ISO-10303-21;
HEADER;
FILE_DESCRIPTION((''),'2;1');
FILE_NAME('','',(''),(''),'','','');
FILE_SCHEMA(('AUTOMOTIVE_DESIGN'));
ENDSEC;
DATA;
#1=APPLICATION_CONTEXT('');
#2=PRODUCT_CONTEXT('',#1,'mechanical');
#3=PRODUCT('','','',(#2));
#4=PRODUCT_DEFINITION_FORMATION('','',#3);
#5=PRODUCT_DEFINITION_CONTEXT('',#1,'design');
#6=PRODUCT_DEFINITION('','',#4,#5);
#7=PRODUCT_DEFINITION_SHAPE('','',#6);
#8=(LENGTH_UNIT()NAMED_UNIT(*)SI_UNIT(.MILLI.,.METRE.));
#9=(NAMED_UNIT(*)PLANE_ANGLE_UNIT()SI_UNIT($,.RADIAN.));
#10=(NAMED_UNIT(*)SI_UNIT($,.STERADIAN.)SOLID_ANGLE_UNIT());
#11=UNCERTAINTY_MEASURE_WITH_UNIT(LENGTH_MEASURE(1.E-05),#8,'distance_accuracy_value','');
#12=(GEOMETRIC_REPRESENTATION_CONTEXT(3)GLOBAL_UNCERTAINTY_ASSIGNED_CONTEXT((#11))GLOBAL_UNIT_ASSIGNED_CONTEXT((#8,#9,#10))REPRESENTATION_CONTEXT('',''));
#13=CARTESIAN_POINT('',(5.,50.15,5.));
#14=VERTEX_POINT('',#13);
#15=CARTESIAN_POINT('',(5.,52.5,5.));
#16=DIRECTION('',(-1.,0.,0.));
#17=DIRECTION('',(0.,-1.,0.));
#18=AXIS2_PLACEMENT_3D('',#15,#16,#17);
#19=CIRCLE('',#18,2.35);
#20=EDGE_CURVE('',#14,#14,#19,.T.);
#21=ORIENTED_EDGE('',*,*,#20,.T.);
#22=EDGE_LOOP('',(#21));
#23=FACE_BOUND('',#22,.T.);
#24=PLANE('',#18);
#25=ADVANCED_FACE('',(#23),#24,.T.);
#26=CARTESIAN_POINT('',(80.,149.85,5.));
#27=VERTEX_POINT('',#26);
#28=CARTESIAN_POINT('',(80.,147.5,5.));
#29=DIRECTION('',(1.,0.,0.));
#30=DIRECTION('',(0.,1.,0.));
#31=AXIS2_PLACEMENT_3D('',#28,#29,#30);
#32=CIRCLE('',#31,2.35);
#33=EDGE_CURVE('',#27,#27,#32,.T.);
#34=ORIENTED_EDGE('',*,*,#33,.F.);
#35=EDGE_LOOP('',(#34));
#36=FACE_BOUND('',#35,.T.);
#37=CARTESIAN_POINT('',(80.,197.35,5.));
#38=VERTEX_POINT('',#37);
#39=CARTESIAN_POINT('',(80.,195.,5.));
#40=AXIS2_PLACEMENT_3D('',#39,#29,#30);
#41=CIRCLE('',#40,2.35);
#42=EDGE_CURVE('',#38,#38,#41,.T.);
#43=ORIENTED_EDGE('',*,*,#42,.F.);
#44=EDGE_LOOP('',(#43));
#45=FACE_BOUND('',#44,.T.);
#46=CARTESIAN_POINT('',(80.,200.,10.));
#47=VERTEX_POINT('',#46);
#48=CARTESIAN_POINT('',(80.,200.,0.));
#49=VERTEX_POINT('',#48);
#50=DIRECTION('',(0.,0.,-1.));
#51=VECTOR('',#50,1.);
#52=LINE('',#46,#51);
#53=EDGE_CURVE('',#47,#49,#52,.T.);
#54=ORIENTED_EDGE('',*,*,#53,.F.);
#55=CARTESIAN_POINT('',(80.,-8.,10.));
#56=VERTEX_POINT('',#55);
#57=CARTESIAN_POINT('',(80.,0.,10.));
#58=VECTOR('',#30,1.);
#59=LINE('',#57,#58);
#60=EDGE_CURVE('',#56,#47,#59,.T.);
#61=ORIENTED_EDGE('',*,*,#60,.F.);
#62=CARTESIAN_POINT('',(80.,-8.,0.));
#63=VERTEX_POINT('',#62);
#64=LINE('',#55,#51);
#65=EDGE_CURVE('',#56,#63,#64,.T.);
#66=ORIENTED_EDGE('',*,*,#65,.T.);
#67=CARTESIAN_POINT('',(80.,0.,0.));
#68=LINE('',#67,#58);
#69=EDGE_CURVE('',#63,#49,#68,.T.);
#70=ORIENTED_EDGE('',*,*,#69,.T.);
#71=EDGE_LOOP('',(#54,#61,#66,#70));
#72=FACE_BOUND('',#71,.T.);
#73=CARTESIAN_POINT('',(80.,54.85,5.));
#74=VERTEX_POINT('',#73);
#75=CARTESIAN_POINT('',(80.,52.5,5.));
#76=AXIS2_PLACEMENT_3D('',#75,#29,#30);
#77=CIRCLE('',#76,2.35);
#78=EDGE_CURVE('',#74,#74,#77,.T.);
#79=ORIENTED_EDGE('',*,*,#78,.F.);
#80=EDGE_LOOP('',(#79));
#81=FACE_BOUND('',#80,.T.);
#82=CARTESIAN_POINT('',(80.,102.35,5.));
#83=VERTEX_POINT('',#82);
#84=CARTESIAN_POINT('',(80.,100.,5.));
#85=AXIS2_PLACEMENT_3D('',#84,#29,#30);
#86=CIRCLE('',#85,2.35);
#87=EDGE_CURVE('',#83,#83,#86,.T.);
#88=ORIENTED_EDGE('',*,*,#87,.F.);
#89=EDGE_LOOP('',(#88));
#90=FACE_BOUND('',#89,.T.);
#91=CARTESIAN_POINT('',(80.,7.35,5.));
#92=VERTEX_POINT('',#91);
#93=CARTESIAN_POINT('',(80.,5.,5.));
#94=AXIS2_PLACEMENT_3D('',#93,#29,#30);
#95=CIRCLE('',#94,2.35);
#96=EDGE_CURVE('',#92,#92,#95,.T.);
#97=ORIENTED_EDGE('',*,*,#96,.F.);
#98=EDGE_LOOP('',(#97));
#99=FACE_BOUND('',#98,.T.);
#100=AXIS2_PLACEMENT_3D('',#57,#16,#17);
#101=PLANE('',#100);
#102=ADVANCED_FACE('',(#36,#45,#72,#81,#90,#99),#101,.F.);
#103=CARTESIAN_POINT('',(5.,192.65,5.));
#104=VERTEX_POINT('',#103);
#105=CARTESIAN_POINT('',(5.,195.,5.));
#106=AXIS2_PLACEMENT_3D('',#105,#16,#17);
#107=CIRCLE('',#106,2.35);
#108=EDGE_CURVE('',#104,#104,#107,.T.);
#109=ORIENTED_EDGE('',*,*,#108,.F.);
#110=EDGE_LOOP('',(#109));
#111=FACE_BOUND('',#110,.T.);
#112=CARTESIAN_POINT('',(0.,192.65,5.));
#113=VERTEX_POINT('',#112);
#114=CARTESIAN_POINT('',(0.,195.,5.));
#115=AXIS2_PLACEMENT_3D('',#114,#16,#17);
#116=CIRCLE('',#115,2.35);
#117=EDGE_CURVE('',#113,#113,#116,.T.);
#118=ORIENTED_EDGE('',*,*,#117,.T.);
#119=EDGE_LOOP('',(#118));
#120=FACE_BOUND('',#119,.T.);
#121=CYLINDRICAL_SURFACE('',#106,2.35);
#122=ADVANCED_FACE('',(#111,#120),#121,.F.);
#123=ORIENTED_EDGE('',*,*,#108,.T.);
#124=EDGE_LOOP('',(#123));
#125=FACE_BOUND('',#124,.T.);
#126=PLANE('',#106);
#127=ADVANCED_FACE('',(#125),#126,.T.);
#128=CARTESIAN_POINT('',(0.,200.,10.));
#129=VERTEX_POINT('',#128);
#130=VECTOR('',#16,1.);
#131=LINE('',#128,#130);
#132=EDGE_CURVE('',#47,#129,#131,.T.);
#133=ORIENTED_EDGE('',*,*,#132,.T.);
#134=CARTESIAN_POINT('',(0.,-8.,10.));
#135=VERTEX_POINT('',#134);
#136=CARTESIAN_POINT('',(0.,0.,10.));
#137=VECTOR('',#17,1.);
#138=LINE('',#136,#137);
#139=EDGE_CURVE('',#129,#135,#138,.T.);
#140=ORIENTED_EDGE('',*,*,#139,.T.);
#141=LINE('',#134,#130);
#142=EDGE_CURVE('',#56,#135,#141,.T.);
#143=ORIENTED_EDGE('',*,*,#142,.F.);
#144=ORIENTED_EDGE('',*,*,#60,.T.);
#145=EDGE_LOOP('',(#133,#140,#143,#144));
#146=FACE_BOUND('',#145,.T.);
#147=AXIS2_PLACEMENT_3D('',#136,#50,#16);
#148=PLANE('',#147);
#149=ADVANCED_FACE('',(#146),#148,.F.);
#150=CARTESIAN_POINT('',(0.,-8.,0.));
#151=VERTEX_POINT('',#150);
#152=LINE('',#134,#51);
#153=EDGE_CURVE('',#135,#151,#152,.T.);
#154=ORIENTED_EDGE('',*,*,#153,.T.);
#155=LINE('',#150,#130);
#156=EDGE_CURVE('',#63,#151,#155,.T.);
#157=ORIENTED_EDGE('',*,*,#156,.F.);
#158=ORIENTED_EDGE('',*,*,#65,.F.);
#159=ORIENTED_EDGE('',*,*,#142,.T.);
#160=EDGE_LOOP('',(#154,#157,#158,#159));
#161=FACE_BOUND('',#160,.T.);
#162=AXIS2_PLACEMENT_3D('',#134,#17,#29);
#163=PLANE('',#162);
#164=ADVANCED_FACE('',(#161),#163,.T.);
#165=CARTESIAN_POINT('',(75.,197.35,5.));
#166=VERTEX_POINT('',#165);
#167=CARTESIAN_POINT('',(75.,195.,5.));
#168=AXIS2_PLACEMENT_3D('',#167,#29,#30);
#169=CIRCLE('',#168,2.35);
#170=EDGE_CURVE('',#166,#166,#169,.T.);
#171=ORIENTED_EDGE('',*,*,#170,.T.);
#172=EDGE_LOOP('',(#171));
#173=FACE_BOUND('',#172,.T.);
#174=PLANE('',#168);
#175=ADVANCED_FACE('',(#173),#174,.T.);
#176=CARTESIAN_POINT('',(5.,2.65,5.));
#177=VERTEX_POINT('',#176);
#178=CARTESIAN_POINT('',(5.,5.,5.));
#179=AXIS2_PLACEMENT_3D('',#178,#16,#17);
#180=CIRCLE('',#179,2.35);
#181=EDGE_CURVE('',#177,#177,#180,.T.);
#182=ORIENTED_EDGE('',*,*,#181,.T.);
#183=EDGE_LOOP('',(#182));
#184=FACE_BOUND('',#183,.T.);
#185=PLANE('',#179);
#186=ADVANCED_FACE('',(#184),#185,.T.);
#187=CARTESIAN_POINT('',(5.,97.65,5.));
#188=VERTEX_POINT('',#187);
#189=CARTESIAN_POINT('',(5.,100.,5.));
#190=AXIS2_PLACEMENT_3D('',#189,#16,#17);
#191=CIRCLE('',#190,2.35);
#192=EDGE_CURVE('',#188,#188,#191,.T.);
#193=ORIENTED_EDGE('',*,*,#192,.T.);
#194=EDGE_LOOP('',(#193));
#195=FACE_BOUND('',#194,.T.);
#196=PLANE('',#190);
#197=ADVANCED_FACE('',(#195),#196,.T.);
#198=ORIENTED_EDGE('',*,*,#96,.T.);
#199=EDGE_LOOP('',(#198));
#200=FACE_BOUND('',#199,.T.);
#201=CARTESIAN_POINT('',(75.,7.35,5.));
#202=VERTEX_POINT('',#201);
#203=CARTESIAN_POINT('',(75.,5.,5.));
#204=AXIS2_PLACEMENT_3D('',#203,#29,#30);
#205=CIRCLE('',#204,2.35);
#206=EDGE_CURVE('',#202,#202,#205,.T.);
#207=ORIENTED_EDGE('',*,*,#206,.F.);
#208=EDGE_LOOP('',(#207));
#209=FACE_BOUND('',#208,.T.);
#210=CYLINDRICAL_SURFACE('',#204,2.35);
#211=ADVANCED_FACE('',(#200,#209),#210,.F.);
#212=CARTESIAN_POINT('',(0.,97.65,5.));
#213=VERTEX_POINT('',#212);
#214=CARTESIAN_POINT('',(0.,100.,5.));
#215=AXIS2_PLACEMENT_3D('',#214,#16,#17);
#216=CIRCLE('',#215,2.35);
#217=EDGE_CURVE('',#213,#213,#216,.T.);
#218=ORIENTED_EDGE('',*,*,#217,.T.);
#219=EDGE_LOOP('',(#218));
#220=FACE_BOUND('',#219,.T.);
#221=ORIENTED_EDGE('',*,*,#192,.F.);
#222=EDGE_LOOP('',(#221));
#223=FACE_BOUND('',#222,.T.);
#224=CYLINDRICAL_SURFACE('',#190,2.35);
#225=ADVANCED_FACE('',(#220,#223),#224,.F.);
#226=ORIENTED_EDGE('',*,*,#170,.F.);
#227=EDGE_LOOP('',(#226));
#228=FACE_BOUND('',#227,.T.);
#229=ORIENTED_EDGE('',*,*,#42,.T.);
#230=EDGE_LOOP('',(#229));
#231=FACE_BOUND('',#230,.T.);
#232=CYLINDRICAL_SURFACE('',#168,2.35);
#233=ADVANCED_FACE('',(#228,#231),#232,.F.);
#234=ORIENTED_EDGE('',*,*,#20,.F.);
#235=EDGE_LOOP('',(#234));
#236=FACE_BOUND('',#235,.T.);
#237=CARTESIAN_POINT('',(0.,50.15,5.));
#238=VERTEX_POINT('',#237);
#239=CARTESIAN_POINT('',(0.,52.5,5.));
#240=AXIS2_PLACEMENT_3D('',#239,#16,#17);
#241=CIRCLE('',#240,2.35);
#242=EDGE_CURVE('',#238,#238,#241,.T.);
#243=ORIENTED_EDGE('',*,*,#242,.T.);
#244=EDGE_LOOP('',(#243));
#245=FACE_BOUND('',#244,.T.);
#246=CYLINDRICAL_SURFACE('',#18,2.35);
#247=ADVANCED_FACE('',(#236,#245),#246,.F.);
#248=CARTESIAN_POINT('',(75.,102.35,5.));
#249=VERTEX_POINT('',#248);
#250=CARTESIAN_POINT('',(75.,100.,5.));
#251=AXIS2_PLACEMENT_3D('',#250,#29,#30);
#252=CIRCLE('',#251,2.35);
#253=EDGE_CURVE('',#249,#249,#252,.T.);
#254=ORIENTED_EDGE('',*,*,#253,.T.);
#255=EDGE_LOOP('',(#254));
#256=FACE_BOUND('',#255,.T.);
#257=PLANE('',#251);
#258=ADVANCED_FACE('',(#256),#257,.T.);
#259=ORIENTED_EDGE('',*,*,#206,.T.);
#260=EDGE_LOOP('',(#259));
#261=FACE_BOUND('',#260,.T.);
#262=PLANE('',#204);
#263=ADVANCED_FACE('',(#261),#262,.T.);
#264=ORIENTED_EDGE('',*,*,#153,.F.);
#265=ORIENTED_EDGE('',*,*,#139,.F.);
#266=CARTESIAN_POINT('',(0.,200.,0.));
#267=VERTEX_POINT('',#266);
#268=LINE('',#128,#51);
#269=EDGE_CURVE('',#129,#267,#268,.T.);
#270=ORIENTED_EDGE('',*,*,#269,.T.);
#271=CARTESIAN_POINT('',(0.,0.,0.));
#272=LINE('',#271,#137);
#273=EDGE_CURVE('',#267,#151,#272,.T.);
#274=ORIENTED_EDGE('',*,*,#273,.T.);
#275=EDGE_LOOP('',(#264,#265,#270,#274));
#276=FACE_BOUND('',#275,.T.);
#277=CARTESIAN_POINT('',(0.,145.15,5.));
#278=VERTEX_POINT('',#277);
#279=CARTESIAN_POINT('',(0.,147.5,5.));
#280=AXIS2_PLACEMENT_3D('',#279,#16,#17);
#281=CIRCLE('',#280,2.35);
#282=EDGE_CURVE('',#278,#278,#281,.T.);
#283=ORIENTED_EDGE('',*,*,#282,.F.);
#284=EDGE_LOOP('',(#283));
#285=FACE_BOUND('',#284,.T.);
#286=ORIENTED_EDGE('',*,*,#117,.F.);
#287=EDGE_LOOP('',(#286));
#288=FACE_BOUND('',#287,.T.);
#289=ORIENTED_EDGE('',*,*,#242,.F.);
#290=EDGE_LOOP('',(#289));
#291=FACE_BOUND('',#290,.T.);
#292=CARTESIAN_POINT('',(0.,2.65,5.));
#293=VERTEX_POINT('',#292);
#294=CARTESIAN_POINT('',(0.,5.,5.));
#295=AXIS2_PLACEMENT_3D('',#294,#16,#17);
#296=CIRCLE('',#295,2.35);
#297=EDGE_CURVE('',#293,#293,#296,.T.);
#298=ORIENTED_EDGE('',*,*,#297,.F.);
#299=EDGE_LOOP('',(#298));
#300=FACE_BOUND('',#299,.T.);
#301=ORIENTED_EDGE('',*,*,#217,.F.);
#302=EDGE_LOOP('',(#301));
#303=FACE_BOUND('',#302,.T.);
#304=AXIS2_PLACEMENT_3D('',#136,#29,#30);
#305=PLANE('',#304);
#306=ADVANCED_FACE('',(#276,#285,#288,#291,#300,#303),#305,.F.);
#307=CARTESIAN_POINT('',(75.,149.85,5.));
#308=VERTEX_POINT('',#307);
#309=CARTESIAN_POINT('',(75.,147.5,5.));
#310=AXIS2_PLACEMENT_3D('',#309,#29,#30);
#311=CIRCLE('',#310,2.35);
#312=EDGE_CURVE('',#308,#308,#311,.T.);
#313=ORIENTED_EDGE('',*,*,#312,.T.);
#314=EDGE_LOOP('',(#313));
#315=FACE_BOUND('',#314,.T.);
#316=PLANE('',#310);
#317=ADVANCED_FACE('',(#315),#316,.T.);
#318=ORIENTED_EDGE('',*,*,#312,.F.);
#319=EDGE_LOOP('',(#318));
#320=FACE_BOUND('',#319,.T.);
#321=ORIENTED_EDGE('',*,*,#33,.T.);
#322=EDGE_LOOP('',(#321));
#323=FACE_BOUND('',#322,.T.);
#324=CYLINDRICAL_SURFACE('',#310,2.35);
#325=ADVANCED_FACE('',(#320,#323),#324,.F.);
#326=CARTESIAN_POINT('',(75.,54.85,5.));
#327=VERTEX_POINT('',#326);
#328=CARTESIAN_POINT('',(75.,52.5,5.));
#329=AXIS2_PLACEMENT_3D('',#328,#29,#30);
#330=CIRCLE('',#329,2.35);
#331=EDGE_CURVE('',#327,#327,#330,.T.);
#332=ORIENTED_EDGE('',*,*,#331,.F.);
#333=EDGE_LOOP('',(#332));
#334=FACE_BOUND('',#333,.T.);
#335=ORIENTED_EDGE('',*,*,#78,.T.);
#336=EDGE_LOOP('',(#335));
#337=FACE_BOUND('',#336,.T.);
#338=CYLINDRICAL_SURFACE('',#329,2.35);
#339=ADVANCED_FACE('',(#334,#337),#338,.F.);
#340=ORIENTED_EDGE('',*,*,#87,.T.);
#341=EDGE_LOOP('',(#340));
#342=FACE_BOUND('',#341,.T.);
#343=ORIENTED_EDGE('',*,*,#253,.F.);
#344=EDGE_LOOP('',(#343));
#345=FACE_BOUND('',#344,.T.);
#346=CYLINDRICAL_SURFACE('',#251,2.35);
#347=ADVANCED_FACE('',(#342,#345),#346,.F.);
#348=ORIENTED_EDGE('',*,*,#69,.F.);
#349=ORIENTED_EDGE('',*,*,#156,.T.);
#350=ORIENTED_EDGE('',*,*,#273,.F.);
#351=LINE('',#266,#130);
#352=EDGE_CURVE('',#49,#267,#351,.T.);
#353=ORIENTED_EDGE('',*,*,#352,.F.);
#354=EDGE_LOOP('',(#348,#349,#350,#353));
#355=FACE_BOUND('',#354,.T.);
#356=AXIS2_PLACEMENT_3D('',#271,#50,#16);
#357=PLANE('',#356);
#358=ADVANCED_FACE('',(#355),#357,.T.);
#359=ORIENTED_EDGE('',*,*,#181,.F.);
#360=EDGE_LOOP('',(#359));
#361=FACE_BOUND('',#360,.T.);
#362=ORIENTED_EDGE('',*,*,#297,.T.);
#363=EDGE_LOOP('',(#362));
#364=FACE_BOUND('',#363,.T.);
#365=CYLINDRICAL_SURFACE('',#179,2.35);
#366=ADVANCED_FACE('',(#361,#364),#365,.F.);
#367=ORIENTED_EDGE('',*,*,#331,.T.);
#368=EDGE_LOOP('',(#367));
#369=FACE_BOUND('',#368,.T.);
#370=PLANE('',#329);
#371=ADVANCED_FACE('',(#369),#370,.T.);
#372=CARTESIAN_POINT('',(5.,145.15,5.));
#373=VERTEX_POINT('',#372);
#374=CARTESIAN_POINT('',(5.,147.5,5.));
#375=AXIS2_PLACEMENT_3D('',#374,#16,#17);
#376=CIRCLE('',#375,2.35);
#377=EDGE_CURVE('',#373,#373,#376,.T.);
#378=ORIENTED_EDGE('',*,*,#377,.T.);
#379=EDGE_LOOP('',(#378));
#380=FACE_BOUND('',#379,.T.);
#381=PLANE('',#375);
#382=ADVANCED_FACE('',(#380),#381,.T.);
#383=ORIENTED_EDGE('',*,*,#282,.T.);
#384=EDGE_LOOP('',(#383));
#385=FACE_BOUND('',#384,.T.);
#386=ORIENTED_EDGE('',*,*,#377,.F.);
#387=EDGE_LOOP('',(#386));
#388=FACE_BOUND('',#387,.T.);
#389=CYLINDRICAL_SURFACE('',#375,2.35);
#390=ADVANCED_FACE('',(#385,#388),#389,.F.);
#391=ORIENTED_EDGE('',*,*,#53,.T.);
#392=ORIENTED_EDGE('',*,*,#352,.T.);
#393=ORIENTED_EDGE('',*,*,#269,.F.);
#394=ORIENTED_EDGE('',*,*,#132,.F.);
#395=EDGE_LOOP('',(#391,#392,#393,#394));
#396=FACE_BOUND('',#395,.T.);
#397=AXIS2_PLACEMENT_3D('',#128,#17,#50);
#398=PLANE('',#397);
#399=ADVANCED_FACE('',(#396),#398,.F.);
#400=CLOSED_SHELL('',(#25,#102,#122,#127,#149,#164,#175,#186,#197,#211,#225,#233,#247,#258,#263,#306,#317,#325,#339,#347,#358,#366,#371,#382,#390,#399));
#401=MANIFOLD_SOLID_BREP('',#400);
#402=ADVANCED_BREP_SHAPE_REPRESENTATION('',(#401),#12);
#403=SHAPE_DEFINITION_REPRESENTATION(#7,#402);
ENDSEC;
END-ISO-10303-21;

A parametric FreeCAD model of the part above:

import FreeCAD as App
import Part
import Sketcher
from FreeCAD import Vector

doc = App.newDocument("Part")
params = doc.addObject("Spreadsheet::Sheet", "Params")
for row, (alias, value) in enumerate([
    ("sketch1_width", "80 mm"),
    ("sketch1_height", "200 mm"),
    ("pad1_length", "10 mm"),
    ("sketch2_diameter", "4.7 mm"),
    ("pocket1_length", "5 mm"),
    ("sketch3_diameter", "4.7 mm"),
    ("pocket2_length", "5 mm"),
    ("sketch4_width", "80 mm"),
    ("sketch4_height", "8 mm"),
    ("pad2_length", "10 mm"),
], start=1):
    params.set(f"A{row}", alias)
    params.set(f"B{row}", "=" + value)
    params.setAlias(f"B{row}", alias)

body = doc.addObject("PartDesign::Body", "Body")

sketch1 = body.newObject("Sketcher::SketchObject", "Sketch")
sketch1.AttachmentSupport = (doc.getObject("XY_Plane"), [""])
sketch1.MapMode = "FlatFace"
sketch1.addGeometry([
    Part.LineSegment(Vector(0, 200, 0), Vector(0, 0, 0)),
    Part.LineSegment(Vector(0, 0, 0), Vector(80, 0, 0)),
    Part.LineSegment(Vector(80, 0, 0), Vector(80, 200, 0)),
    Part.LineSegment(Vector(80, 200, 0), Vector(0, 200, 0)),
], False)
sketch1.addConstraint([
    Sketcher.Constraint("Coincident", 0, 2, 1, 1),
    Sketcher.Constraint("Coincident", 1, 2, 2, 1),
    Sketcher.Constraint("Coincident", 2, 2, 3, 1),
    Sketcher.Constraint("Coincident", 3, 2, 0, 1),
    Sketcher.Constraint("Vertical", 0),
    Sketcher.Constraint("Horizontal", 1),
    Sketcher.Constraint("Vertical", 2),
    Sketcher.Constraint("Horizontal", 3),
    Sketcher.Constraint("Coincident", 0, 2, -1, 1),
    Sketcher.Constraint("DistanceX", 1, 1, 1, 2, 80.0),
    Sketcher.Constraint("DistanceY", 0, 2, 0, 1, 200.0),
])
sketch1.setExpression("Constraints[9]", "Params.sketch1_width")
sketch1.setExpression("Constraints[10]", "Params.sketch1_height")
pad1 = body.newObject("PartDesign::Pad", "Pad")
pad1.Profile = sketch1
pad1.setExpression("Length", "Params.pad1_length")

sketch2 = body.newObject("Sketcher::SketchObject", "Sketch001")
sketch2.AttachmentSupport = (doc.getObject("YZ_Plane"), [""])
sketch2.MapMode = "FlatFace"
sketch2.addGeometry([
    Part.Circle(Vector(195, 5, 0), Vector(0, 0, 1), 2.35),
    Part.Circle(Vector(147.5, 5, 0), Vector(0, 0, 1), 2.35),
    Part.Circle(Vector(100, 5, 0), Vector(0, 0, 1), 2.35),
    Part.Circle(Vector(52.5, 5, 0), Vector(0, 0, 1), 2.35),
    Part.Circle(Vector(5, 5, 0), Vector(0, 0, 1), 2.35),
], False)
sketch2.addConstraint([
    Sketcher.Constraint("Equal", 0, 1),
    Sketcher.Constraint("Equal", 1, 2),
    Sketcher.Constraint("Equal", 2, 3),
    Sketcher.Constraint("Equal", 3, 4),
    Sketcher.Constraint("Horizontal", 0, 3, 1, 3),
    Sketcher.Constraint("Horizontal", 1, 3, 2, 3),
    Sketcher.Constraint("Horizontal", 2, 3, 3, 3),
    Sketcher.Constraint("Horizontal", 3, 3, 4, 3),
    Sketcher.Constraint("Diameter", 0, 4.7),
    Sketcher.Constraint("DistanceX", -1, 1, 0, 3, 195.0),
    Sketcher.Constraint("DistanceY", -1, 1, 0, 3, 5.0),
    Sketcher.Constraint("DistanceX", -1, 1, 2, 3, 100.0),
    Sketcher.Constraint("DistanceX", -1, 1, 4, 3, 5.0),
    Sketcher.Constraint("DistanceX", 3, 3, 1, 3, 95.0),
    Sketcher.Constraint("DistanceX", -1, 1, 1, 3, 147.5),
])
sketch2.setExpression("Constraints[8]", "Params.sketch2_diameter")
pocket1 = body.newObject("PartDesign::Pocket", "Pocket")
pocket1.Profile = sketch2
pocket1.setExpression("Length", "Params.pocket1_length")
pocket1.Reversed = True

sketch3 = body.newObject("Sketcher::SketchObject", "Sketch002")
sketch3.AttachmentSupport = (doc.getObject("YZ_Plane"), [""])
sketch3.MapMode = "FlatFace"
sketch3.AttachmentOffset = App.Placement(Vector(0, 0, 75), App.Rotation())
sketch3.addGeometry([
    Part.Circle(Vector(195, 5, 0), Vector(0, 0, 1), 2.35),
    Part.Circle(Vector(147.5, 5, 0), Vector(0, 0, 1), 2.35),
    Part.Circle(Vector(100, 5, 0), Vector(0, 0, 1), 2.35),
    Part.Circle(Vector(52.5, 5, 0), Vector(0, 0, 1), 2.35),
    Part.Circle(Vector(5, 5, 0), Vector(0, 0, 1), 2.35),
], False)
sketch3.addConstraint([
    Sketcher.Constraint("Equal", 0, 1),
    Sketcher.Constraint("Equal", 1, 2),
    Sketcher.Constraint("Equal", 2, 3),
    Sketcher.Constraint("Equal", 3, 4),
    Sketcher.Constraint("Horizontal", 0, 3, 1, 3),
    Sketcher.Constraint("Horizontal", 1, 3, 2, 3),
    Sketcher.Constraint("Horizontal", 2, 3, 3, 3),
    Sketcher.Constraint("Horizontal", 3, 3, 4, 3),
    Sketcher.Constraint("Diameter", 0, 4.7),
    Sketcher.Constraint("DistanceX", -1, 1, 0, 3, 195.0),
    Sketcher.Constraint("DistanceY", -1, 1, 0, 3, 5.0),
    Sketcher.Constraint("DistanceX", -1, 1, 2, 3, 100.0),
    Sketcher.Constraint("DistanceX", -1, 1, 4, 3, 5.0),
    Sketcher.Constraint("DistanceX", 3, 3, 1, 3, 95.0),
    Sketcher.Constraint("DistanceX", -1, 1, 1, 3, 147.5),
])
sketch3.setExpression("Constraints[8]", "Params.sketch3_diameter")
pocket2 = body.newObject("PartDesign::Pocket", "Pocket001")
pocket2.Profile = sketch3
pocket2.setExpression("Length", "Params.pocket2_length")
pocket2.Reversed = True

sketch4 = body.newObject("Sketcher::SketchObject", "Sketch003")
sketch4.AttachmentSupport = (doc.getObject("XY_Plane"), [""])
sketch4.MapMode = "FlatFace"
sketch4.addGeometry([
    Part.LineSegment(Vector(80, 0, 0), Vector(80, -8, 0)),
    Part.LineSegment(Vector(80, -8, 0), Vector(0, -8, 0)),
    Part.LineSegment(Vector(0, -8, 0), Vector(0, 0, 0)),
    Part.LineSegment(Vector(0, 0, 0), Vector(80, 0, 0)),
], False)
sketch4.addConstraint([
    Sketcher.Constraint("Coincident", 0, 2, 1, 1),
    Sketcher.Constraint("Coincident", 1, 2, 2, 1),
    Sketcher.Constraint("Coincident", 2, 2, 3, 1),
    Sketcher.Constraint("Coincident", 3, 2, 0, 1),
    Sketcher.Constraint("Vertical", 0),
    Sketcher.Constraint("Horizontal", 1),
    Sketcher.Constraint("Vertical", 2),
    Sketcher.Constraint("Horizontal", 3),
    Sketcher.Constraint("Coincident", 2, 2, -1, 1),
    Sketcher.Constraint("DistanceX", 1, 2, 1, 1, 80.0),
    Sketcher.Constraint("DistanceY", 0, 2, 0, 1, 8.0),
])
sketch4.setExpression("Constraints[9]", "Params.sketch4_width")
sketch4.setExpression("Constraints[10]", "Params.sketch4_height")
pad2 = body.newObject("PartDesign::Pad", "Pad001")
pad2.Profile = sketch4
pad2.setExpression("Length", "Params.pad2_length")

doc.recompute()
